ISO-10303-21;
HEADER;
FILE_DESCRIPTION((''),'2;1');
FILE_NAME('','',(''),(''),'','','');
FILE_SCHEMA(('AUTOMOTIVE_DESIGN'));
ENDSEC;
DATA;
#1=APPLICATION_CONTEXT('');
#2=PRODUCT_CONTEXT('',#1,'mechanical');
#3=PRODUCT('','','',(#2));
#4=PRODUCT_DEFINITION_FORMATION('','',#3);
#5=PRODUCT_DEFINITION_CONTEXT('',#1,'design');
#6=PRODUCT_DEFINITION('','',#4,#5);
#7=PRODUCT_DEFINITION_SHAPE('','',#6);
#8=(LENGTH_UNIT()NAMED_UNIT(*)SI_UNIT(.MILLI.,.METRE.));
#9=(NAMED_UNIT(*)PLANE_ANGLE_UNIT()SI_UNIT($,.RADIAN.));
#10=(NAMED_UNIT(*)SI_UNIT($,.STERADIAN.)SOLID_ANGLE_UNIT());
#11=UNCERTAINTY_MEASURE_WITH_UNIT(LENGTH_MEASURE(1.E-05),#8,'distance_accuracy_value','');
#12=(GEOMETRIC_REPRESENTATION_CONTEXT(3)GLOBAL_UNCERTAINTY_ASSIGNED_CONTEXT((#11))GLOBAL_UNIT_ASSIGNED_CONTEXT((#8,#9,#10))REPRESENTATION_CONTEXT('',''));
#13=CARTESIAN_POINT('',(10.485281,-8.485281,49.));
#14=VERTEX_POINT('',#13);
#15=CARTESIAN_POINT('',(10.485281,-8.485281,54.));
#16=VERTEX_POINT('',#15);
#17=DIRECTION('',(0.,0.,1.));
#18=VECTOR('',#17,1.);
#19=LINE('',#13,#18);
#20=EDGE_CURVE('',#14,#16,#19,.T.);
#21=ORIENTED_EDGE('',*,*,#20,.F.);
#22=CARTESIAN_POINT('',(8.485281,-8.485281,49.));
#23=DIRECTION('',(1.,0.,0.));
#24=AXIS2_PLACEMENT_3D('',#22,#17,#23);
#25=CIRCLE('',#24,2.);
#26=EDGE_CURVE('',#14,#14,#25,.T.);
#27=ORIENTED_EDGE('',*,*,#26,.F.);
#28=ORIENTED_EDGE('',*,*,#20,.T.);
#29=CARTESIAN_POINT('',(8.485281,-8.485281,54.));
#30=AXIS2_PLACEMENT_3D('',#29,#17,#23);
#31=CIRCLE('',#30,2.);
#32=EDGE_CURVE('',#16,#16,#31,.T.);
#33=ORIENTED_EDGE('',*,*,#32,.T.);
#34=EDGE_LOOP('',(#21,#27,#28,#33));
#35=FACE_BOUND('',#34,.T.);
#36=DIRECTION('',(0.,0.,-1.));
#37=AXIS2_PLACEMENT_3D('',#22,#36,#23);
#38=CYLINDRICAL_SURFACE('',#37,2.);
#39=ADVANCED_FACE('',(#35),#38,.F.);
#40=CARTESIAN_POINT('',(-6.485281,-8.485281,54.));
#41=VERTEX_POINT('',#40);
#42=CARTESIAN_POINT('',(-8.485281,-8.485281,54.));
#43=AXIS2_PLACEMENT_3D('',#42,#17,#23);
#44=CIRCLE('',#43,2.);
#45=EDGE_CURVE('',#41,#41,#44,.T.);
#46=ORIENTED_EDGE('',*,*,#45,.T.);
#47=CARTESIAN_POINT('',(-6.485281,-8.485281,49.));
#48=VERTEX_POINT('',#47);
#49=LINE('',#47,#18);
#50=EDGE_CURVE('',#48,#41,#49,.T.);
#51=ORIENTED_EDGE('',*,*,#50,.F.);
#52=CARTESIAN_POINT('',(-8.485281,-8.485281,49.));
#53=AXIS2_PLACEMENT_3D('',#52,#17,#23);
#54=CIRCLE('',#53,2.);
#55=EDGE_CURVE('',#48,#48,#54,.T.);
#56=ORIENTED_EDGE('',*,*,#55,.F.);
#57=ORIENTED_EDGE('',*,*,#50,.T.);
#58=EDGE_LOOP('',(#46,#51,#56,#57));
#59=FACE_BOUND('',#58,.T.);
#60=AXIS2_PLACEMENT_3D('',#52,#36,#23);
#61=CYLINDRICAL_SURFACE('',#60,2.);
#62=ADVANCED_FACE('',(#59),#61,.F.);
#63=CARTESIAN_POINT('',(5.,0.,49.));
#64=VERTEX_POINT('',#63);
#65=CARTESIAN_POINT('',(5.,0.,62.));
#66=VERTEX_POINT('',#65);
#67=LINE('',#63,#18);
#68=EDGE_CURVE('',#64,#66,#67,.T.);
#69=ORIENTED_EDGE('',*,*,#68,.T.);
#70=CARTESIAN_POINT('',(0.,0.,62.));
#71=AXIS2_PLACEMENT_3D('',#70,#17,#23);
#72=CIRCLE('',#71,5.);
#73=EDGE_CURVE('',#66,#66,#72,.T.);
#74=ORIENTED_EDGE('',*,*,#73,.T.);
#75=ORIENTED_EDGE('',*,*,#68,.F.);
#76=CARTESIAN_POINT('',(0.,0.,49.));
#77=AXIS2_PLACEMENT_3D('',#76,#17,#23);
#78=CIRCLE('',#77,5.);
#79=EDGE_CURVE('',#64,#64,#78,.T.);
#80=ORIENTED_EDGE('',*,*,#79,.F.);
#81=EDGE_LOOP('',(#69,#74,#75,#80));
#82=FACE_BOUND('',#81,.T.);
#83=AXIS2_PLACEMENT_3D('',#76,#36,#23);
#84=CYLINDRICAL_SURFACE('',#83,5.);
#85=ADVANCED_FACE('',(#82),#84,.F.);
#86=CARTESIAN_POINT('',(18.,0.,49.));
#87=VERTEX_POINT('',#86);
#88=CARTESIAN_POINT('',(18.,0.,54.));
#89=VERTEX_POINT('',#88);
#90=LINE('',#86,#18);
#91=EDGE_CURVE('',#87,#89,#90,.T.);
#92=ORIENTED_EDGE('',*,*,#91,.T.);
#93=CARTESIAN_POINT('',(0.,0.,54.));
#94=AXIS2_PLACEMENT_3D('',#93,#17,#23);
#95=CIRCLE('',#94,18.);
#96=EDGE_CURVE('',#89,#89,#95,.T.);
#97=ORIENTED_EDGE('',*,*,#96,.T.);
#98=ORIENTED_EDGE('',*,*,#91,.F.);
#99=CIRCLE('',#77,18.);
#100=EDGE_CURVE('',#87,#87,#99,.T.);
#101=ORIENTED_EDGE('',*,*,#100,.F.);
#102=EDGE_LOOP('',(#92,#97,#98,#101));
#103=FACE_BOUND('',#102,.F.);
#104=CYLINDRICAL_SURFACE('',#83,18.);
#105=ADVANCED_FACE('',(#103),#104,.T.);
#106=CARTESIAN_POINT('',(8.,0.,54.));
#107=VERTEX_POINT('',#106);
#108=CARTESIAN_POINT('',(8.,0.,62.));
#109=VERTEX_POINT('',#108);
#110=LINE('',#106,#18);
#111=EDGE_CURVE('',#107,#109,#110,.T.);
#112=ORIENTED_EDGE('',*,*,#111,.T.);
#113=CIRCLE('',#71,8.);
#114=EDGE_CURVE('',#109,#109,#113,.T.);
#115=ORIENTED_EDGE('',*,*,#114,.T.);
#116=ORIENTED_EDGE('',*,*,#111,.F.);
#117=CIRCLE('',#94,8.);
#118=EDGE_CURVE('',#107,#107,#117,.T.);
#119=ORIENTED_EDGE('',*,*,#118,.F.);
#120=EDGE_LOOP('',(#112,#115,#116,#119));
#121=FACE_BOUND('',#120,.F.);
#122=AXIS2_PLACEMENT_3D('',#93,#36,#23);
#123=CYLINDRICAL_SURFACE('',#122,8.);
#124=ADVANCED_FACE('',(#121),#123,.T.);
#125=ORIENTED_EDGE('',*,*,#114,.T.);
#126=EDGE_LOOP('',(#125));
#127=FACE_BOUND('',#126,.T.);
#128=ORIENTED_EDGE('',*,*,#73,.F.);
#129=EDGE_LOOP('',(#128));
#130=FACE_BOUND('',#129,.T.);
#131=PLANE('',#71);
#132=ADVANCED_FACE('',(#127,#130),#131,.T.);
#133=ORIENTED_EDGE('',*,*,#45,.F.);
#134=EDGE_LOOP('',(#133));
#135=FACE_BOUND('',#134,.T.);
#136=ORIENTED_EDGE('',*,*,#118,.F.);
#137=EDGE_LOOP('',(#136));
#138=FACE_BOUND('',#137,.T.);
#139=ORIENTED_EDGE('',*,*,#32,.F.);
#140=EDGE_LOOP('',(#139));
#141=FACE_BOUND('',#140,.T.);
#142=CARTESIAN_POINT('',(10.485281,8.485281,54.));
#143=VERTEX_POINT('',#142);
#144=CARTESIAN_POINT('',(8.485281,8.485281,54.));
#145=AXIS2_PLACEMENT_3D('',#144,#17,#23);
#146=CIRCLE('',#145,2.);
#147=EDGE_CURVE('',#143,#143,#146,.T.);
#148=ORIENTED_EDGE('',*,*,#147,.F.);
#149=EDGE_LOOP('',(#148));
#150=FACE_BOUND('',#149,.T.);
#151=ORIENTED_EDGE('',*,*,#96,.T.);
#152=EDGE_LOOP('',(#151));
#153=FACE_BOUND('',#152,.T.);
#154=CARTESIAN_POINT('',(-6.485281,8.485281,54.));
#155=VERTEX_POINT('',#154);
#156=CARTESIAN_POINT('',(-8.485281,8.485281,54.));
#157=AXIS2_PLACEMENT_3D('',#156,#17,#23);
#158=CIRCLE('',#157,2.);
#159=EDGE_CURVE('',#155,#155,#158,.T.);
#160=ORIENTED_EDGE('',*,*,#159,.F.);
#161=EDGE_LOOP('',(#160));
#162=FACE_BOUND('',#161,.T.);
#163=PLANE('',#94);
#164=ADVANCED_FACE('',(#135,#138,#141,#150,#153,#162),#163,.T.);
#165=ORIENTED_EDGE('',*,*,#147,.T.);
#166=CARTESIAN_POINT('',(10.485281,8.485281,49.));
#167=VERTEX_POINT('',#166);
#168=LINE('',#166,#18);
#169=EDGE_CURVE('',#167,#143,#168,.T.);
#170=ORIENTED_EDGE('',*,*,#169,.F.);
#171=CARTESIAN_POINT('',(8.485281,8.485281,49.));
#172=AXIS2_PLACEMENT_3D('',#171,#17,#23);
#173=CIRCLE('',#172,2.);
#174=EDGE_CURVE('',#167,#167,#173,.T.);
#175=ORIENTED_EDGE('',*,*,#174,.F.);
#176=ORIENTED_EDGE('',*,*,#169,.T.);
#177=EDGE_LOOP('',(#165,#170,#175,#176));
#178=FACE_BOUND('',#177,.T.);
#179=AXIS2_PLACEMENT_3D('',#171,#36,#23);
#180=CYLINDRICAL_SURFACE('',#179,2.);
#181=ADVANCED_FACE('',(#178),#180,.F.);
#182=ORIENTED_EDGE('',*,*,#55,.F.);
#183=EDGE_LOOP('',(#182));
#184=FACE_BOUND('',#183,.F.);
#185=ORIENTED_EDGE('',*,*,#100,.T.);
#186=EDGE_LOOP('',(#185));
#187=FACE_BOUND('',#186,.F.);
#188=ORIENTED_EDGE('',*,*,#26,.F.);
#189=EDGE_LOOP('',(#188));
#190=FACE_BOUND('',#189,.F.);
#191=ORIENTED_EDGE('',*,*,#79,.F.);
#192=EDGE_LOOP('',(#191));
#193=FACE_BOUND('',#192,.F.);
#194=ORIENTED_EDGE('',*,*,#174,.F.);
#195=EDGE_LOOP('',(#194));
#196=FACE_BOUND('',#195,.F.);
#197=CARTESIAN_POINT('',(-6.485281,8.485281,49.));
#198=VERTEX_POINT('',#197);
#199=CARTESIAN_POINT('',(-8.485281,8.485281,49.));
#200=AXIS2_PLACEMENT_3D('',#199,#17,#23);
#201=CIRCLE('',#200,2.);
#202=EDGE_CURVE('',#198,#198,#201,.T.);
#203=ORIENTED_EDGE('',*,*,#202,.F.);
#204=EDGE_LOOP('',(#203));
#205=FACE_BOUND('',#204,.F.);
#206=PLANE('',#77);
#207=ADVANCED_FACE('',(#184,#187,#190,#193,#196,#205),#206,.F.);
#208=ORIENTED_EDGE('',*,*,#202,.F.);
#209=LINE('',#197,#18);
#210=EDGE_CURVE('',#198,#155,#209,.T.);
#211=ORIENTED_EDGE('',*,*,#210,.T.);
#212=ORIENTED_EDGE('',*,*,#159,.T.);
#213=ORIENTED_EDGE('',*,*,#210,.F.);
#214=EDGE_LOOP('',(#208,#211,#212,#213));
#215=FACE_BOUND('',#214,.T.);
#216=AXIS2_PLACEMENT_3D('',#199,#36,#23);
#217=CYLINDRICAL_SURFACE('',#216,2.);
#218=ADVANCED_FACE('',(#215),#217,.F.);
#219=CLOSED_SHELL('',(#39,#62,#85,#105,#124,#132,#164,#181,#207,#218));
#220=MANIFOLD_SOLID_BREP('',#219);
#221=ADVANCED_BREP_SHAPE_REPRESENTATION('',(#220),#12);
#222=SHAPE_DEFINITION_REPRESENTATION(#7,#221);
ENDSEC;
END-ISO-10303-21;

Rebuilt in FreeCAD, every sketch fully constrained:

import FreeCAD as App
import Part
import Sketcher

doc = App.newDocument("Part")
body = doc.addObject("PartDesign::Body", "Body")

sketch1 = body.newObject("Sketcher::SketchObject", "Sketch")
sketch1.AttachmentSupport = (doc.getObject("XY_Plane"), [""])
sketch1.MapMode = "FlatFace"
sketch1.AttachmentOffset = App.Placement(App.Vector(0, 0, 49), App.Rotation())
sketch1.addGeometry([
    Part.Circle(App.Vector(0, 0, 0), App.Vector(0, 0, 1), 18),
    Part.Circle(App.Vector(-8.5, -8.5, 0), App.Vector(0, 0, 1), 2),
    Part.Circle(App.Vector(8.5, -8.5, 0), App.Vector(0, 0, 1), 2),
    Part.Circle(App.Vector(-8.5, 8.5, 0), App.Vector(0, 0, 1), 2),
    Part.Circle(App.Vector(0, 0, 0), App.Vector(0, 0, 1), 5),
    Part.Circle(App.Vector(8.5, 8.5, 0), App.Vector(0, 0, 1), 2),
], False)
sketch1.addConstraint([
    Sketcher.Constraint("Coincident", 0, 3, -1, 1),
    Sketcher.Constraint("Coincident", 4, 3, -1, 1),
    Sketcher.Constraint("Equal", 1, 2),
    Sketcher.Constraint("Equal", 2, 3),
    Sketcher.Constraint("Equal", 3, 5),
    Sketcher.Constraint("Symmetric", 2, 3, 3, 3, -1, 1),
    Sketcher.Constraint("Symmetric", 1, 3, 5, 3, -1, 1),
    Sketcher.Constraint("Symmetric", 1, 3, 2, 3, -2),
    Sketcher.Constraint("Diameter", 0, 36.0),
    Sketcher.Constraint("Diameter", 1, 4.0),
    Sketcher.Constraint("Diameter", 4, 10.0),
    Sketcher.Constraint("DistanceX", 1, 3, -1, 1, 8.485281),
    Sketcher.Constraint("DistanceY", 1, 3, -1, 1, 8.485281),
])
pad1 = body.newObject("PartDesign::Pad", "Pad")
pad1.Profile = sketch1
pad1.Length = 5
body2 = doc.addObject("PartDesign::Body", "Body001")

sketch2 = body2.newObject("Sketcher::SketchObject", "Sketch001")
sketch2.AttachmentSupport = (doc.getObject("XY_Plane001"), [""])
sketch2.MapMode = "FlatFace"
sketch2.AttachmentOffset = App.Placement(App.Vector(0, 0, 54), App.Rotation())
sketch2.addGeometry([
    Part.Circle(App.Vector(0, 0, 0), App.Vector(0, 0, 1), 8),
    Part.Circle(App.Vector(0, 0, 0), App.Vector(0, 0, 1), 5),
], False)
sketch2.addConstraint([
    Sketcher.Constraint("Coincident", 0, 3, -1, 1),
    Sketcher.Constraint("Coincident", 1, 3, -1, 1),
    Sketcher.Constraint("Diameter", 0, 16.0),
    Sketcher.Constraint("Diameter", 1, 10.0),
])
pad2 = body2.newObject("PartDesign::Pad", "Pad001")
pad2.Profile = sketch2
pad2.Length = 8
doc.recompute()

boolean = body2.newObject("PartDesign::Boolean", "Boolean")
boolean.Type = "Fuse"
boolean.addObjects([body])

doc.recompute()
